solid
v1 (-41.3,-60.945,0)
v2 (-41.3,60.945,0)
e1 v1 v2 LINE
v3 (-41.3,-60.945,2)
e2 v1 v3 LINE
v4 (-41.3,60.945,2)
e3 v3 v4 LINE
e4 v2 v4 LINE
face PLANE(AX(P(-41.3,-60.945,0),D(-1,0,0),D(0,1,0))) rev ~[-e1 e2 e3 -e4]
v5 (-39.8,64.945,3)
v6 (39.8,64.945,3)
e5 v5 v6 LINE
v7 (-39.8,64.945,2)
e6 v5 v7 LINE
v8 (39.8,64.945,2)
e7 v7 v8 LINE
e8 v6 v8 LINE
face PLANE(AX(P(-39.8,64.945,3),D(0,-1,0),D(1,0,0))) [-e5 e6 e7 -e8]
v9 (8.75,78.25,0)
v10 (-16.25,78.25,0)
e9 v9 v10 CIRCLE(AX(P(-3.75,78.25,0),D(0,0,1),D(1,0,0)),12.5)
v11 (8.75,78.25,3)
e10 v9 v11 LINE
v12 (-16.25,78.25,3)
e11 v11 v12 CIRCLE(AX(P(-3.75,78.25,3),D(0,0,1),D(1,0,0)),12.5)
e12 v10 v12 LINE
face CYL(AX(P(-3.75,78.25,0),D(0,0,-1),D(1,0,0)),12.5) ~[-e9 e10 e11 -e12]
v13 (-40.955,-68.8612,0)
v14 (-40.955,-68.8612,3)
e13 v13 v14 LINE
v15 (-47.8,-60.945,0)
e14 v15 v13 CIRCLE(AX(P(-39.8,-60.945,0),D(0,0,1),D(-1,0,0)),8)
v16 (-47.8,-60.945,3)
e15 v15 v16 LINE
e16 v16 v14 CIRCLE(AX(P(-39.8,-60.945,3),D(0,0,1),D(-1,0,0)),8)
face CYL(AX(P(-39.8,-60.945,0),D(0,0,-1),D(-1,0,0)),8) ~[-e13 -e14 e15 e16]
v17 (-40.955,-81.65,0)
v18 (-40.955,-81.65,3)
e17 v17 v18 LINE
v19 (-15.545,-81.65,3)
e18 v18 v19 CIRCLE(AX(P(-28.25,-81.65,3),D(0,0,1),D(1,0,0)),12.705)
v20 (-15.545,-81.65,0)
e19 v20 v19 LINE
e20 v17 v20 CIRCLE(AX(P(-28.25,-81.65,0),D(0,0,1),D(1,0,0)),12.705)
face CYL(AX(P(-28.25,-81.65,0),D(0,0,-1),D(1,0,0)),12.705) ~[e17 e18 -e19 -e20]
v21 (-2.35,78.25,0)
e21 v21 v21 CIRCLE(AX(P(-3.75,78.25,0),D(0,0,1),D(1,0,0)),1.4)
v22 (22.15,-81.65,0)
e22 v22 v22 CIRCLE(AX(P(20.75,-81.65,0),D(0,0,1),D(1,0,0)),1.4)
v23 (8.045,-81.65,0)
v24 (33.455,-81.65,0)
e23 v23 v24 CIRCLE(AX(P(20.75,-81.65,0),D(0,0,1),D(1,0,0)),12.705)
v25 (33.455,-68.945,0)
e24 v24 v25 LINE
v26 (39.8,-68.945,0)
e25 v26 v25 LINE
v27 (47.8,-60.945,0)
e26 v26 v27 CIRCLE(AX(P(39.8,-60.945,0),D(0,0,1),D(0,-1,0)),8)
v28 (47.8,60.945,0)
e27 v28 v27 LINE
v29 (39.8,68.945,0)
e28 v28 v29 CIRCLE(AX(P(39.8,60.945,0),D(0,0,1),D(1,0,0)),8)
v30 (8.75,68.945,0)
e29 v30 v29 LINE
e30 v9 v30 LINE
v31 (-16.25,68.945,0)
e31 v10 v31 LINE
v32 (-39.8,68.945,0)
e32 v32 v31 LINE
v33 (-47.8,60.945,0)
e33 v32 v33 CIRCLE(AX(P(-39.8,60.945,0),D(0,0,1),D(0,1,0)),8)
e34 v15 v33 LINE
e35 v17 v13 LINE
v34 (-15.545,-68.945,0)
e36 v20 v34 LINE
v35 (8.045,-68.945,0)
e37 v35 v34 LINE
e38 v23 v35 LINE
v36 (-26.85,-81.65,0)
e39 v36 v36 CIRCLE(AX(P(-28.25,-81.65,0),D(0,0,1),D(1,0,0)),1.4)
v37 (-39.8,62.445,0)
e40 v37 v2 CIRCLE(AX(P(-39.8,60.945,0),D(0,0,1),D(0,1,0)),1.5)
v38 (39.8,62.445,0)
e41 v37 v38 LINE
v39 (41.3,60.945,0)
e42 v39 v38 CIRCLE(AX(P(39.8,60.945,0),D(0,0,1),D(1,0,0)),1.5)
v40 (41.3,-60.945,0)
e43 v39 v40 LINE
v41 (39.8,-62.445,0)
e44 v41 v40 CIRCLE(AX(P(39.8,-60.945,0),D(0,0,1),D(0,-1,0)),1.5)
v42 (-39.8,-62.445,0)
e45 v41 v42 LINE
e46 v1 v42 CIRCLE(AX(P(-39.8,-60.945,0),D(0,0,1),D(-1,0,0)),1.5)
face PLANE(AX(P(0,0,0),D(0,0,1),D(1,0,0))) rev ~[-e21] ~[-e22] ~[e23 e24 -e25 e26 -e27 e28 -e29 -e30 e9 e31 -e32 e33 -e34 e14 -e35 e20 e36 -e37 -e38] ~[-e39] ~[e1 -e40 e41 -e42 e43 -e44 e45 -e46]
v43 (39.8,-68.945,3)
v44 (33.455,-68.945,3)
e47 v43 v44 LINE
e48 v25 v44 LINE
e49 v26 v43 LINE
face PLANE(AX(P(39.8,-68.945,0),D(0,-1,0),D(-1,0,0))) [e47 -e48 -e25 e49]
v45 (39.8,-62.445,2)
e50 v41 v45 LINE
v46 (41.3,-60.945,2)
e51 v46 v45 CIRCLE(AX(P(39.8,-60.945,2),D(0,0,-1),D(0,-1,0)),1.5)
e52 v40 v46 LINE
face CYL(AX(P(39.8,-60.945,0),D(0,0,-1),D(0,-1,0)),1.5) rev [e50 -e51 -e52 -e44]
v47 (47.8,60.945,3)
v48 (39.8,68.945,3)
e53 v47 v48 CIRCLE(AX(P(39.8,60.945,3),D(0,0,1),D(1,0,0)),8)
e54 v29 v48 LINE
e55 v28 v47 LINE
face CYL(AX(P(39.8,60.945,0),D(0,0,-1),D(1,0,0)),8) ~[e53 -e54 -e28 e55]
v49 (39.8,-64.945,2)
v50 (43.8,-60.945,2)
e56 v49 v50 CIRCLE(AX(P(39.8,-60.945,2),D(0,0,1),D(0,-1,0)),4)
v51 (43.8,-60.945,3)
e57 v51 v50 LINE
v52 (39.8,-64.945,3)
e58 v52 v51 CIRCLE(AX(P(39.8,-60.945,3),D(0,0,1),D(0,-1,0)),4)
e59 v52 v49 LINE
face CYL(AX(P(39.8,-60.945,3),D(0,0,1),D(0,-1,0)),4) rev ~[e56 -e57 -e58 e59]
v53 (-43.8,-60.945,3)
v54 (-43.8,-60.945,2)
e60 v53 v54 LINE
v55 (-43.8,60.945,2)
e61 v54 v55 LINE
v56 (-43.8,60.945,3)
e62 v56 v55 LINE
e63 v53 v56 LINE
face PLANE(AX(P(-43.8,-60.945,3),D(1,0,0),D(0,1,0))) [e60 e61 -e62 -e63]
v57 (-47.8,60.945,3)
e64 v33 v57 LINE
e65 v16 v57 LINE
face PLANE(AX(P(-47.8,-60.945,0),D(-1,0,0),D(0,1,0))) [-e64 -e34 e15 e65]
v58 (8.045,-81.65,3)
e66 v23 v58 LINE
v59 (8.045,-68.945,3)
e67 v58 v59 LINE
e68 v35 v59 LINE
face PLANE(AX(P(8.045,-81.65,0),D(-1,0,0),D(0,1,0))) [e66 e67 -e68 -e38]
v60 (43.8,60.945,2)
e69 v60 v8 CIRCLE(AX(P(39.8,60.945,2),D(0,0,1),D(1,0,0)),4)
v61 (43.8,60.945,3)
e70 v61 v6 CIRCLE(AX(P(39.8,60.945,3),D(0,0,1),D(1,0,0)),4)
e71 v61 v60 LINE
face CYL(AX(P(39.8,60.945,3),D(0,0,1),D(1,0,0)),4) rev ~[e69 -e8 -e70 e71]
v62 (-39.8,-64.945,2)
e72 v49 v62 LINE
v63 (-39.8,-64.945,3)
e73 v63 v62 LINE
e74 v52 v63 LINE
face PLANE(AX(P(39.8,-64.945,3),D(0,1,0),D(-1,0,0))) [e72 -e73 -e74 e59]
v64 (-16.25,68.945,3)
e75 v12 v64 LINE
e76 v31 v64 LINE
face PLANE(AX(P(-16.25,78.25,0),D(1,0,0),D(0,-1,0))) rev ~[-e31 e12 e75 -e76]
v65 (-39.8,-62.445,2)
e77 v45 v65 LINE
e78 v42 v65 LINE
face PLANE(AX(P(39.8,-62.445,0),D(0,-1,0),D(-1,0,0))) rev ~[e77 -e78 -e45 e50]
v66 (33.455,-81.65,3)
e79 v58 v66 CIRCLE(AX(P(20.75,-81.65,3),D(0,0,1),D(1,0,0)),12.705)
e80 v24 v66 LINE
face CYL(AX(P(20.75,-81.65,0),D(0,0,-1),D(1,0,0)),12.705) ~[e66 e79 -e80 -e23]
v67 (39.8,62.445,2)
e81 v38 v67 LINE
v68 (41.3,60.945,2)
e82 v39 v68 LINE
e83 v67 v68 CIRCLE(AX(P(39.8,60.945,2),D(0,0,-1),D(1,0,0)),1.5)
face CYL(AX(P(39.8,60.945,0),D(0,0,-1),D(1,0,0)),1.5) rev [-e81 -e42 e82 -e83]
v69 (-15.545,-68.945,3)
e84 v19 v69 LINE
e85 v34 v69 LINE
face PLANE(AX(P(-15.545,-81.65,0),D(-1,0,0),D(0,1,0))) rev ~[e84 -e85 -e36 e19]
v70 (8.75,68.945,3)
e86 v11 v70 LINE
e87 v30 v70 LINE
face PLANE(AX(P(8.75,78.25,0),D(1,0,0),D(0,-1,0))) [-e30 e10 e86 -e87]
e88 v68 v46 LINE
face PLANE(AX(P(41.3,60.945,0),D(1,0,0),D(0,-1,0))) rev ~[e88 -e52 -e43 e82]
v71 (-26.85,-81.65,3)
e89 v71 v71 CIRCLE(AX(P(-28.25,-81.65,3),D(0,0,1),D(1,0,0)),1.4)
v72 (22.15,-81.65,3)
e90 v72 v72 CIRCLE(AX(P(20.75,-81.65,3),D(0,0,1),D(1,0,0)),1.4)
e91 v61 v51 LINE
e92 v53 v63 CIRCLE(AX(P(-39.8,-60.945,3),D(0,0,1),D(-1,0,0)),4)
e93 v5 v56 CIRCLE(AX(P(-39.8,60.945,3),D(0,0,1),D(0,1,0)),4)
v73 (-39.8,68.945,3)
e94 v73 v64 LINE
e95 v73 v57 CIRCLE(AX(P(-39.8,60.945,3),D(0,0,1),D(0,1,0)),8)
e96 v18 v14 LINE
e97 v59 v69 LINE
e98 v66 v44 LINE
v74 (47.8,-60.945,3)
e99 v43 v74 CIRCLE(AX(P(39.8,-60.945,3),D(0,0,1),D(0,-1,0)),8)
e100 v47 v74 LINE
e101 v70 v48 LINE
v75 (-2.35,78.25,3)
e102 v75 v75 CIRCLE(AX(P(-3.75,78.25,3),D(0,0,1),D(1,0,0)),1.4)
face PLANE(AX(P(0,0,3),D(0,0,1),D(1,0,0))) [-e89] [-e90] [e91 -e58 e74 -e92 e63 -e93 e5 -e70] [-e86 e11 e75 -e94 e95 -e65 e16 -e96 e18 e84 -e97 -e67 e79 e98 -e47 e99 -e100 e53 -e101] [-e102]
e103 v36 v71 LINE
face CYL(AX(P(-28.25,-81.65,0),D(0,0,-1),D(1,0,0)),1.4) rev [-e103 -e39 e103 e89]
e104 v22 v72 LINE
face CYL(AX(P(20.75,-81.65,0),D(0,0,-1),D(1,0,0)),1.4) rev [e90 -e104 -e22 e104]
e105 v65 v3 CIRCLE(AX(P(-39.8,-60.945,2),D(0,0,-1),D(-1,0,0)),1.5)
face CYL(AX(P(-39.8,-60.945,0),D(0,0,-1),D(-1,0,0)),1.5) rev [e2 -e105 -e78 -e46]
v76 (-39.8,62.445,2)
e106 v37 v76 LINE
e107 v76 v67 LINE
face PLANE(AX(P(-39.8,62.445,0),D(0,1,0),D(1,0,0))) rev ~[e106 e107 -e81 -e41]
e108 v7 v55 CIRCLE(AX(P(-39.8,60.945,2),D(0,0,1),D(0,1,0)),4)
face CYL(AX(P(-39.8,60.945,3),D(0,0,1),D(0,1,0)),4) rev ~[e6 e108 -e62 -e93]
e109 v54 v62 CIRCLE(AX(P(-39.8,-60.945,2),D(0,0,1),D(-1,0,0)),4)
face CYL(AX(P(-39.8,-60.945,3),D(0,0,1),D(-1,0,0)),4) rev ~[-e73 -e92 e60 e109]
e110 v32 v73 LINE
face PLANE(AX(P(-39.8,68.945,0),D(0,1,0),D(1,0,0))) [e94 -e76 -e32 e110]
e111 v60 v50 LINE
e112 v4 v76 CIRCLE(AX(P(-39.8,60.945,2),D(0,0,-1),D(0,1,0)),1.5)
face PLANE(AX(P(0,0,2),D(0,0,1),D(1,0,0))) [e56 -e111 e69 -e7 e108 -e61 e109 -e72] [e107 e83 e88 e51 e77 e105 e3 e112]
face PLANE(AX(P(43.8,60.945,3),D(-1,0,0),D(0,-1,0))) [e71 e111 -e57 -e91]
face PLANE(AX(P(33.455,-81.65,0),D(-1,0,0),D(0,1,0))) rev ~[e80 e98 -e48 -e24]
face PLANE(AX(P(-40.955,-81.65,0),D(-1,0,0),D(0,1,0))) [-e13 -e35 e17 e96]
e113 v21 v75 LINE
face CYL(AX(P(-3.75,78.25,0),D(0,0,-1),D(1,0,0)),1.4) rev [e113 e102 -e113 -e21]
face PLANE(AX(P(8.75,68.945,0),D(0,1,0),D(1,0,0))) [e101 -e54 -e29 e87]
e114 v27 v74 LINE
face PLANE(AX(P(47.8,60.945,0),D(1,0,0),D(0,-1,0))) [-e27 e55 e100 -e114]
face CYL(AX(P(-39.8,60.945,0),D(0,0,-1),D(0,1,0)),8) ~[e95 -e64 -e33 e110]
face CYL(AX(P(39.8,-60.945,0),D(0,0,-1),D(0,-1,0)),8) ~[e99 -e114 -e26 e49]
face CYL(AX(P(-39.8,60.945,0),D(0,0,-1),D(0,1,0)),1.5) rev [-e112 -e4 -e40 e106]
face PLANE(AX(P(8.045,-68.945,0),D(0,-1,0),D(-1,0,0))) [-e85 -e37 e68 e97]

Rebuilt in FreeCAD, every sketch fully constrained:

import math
import FreeCAD as App
import Part
import Sketcher
from FreeCAD import Vector
Q = App.Units.Quantity

doc = App.newDocument("Part")
body = doc.addObject("PartDesign::Body", "Body")

sketch1 = doc.addObject("Sketcher::SketchObject", "Sketch")
body.addObject(sketch1)
sketch1.AttachmentSupport = (doc.XY_Plane, [""])
sketch1.MapMode = "FlatFace"
sketch1.addGeometry([
    Part.LineSegment(Vector(47.8, -60.9, 0), Vector(47.8, 60.9, 0)),
    Part.ArcOfCircle(Part.Circle(Vector(39.8, 60.9, 0), Vector(0, 0, 1), 8), math.radians(0), math.radians(90)),
    Part.LineSegment(Vector(39.8, 68.9, 0), Vector(8.8, 68.9, 0)),
    Part.LineSegment(Vector(8.8, 68.9, 0), Vector(8.8, 78.2, 0)),
    Part.ArcOfCircle(Part.Circle(Vector(-3.8, 78.2, 0), Vector(0, 0, 1), 12.5), math.radians(0), math.radians(180)),
    Part.LineSegment(Vector(-16.2, 78.2, 0), Vector(-16.2, 68.9, 0)),
    Part.LineSegment(Vector(-16.2, 68.9, 0), Vector(-39.8, 68.9, 0)),
    Part.ArcOfCircle(Part.Circle(Vector(-39.8, 60.9, 0), Vector(0, 0, 1), 8), math.radians(90), math.radians(180)),
    Part.LineSegment(Vector(-47.8, 60.9, 0), Vector(-47.8, -60.9, 0)),
    Part.ArcOfCircle(Part.Circle(Vector(-39.8, -60.9, 0), Vector(0, 0, 1), 8), math.radians(180), math.radians(262)),
    Part.LineSegment(Vector(-41, -68.9, 0), Vector(-41, -81.7, 0)),
    Part.ArcOfCircle(Part.Circle(Vector(-28.2, -81.7, 0), Vector(0, 0, 1), 12.7), math.radians(180), math.radians(360)),
    Part.LineSegment(Vector(-15.5, -81.7, 0), Vector(-15.5, -68.9, 0)),
    Part.LineSegment(Vector(-15.5, -68.9, 0), Vector(8, -68.9, 0)),
    Part.LineSegment(Vector(8, -68.9, 0), Vector(8, -81.7, 0)),
    Part.ArcOfCircle(Part.Circle(Vector(20.8, -81.7, 0), Vector(0, 0, 1), 12.7), math.radians(180), math.radians(360)),
    Part.LineSegment(Vector(33.5, -81.7, 0), Vector(33.5, -68.9, 0)),
    Part.LineSegment(Vector(33.5, -68.9, 0), Vector(39.8, -68.9, 0)),
    Part.ArcOfCircle(Part.Circle(Vector(39.8, -60.9, 0), Vector(0, 0, 1), 8), math.radians(-90), math.radians(0)),
    Part.ArcOfCircle(Part.Circle(Vector(39.8, 60.9, 0), Vector(0, 0, 1), 1.5), math.radians(0), math.radians(90)),
    Part.LineSegment(Vector(41.3, 60.9, 0), Vector(41.3, -60.9, 0)),
    Part.ArcOfCircle(Part.Circle(Vector(39.8, -60.9, 0), Vector(0, 0, 1), 1.5), math.radians(-90), math.radians(0)),
    Part.LineSegment(Vector(39.8, -62.4, 0), Vector(-39.8, -62.4, 0)),
    Part.ArcOfCircle(Part.Circle(Vector(-39.8, -60.9, 0), Vector(0, 0, 1), 1.5), math.radians(180), math.radians(270)),
    Part.LineSegment(Vector(-41.3, -60.9, 0), Vector(-41.3, 60.9, 0)),
    Part.ArcOfCircle(Part.Circle(Vector(-39.8, 60.9, 0), Vector(0, 0, 1), 1.5), math.radians(90), math.radians(180)),
    Part.LineSegment(Vector(-39.8, 62.4, 0), Vector(39.8, 62.4, 0)),
    Part.Circle(Vector(20.8, -81.7, 0), Vector(0, 0, 1), 1.4),
    Part.Circle(Vector(-28.2, -81.7, 0), Vector(0, 0, 1), 1.4),
    Part.Circle(Vector(-3.8, 78.2, 0), Vector(0, 0, 1), 1.4),
], False)
sketch1.addConstraint([
    Sketcher.Constraint("Tangent", 0, 2, 1, 1),
    Sketcher.Constraint("Tangent", 1, 2, 2, 1),
    Sketcher.Constraint("Coincident", 2, 2, 3, 1),
    Sketcher.Constraint("Tangent", 3, 2, 4, 1),
    Sketcher.Constraint("Tangent", 4, 2, 5, 1),
    Sketcher.Constraint("Coincident", 5, 2, 6, 1),
    Sketcher.Constraint("Tangent", 6, 2, 7, 1),
    Sketcher.Constraint("Tangent", 7, 2, 8, 1),
    Sketcher.Constraint("Tangent", 8, 2, 9, 1),
    Sketcher.Constraint("Coincident", 9, 2, 10, 1),
    Sketcher.Constraint("Tangent", 10, 2, 11, 1),
    Sketcher.Constraint("Tangent", 11, 2, 12, 1),
    Sketcher.Constraint("Coincident", 12, 2, 13, 1),
    Sketcher.Constraint("Coincident", 13, 2, 14, 1),
    Sketcher.Constraint("Tangent", 14, 2, 15, 1),
    Sketcher.Constraint("Tangent", 15, 2, 16, 1),
    Sketcher.Constraint("Coincident", 16, 2, 17, 1),
    Sketcher.Constraint("Tangent", 17, 2, 18, 1),
    Sketcher.Constraint("Tangent", 18, 2, 0, 1),
    Sketcher.Constraint("Tangent", 19, 1, 20, 1),
    Sketcher.Constraint("Tangent", 20, 2, 21, 2),
    Sketcher.Constraint("Tangent", 21, 1, 22, 1),
    Sketcher.Constraint("Tangent", 22, 2, 23, 2),
    Sketcher.Constraint("Tangent", 23, 1, 24, 1),
    Sketcher.Constraint("Tangent", 24, 2, 25, 2),
    Sketcher.Constraint("Tangent", 25, 1, 26, 1),
    Sketcher.Constraint("Tangent", 26, 2, 19, 2),
    Sketcher.Constraint("Vertical", 0),
    Sketcher.Constraint("Horizontal", 2),
    Sketcher.Constraint("Vertical", 3),
    Sketcher.Constraint("Vertical", 5),
    Sketcher.Constraint("Horizontal", 6),
    Sketcher.Constraint("Vertical", 8),
    Sketcher.Constraint("Vertical", 10),
    Sketcher.Constraint("Vertical", 12),
    Sketcher.Constraint("Horizontal", 13),
    Sketcher.Constraint("Vertical", 14),
    Sketcher.Constraint("Vertical", 16),
    Sketcher.Constraint("Horizontal", 17),
    Sketcher.Constraint("Vertical", 20),
    Sketcher.Constraint("Horizontal", 22),
    Sketcher.Constraint("Vertical", 24),
    Sketcher.Constraint("Horizontal", 26),
    Sketcher.Constraint("Coincident", 19, 3, 1, 3),
    Sketcher.Constraint("Coincident", 21, 3, 18, 3),
    Sketcher.Constraint("Coincident", 23, 3, 9, 3),
    Sketcher.Constraint("Coincident", 25, 3, 7, 3),
    Sketcher.Constraint("Coincident", 27, 3, 15, 3),
    Sketcher.Constraint("Coincident", 28, 3, 11, 3),
    Sketcher.Constraint("Coincident", 29, 3, 4, 3),
    Sketcher.Constraint("Equal", 1, 7),
    Sketcher.Constraint("Equal", 7, 9),
    Sketcher.Constraint("Equal", 11, 15),
    Sketcher.Constraint("Equal", 9, 18),
    Sketcher.Constraint("Equal", 21, 23),
    Sketcher.Constraint("Equal", 27, 28),
    Sketcher.Constraint("Equal", 28, 29),
    Sketcher.Constraint("Symmetric", 1, 3, 9, 3, -1, 1),
    Sketcher.Constraint("Horizontal", 11, 3, 15, 3),
    Sketcher.Constraint("Horizontal", 13, 2, 16, 2),
    Sketcher.Constraint("Diameter", 27, Q("2.8 mm")),
    Sketcher.Constraint("Radius", 4, Q("12.5 mm")),
    Sketcher.Constraint("Radius", 19, Q("1.5 mm")),
    Sketcher.Constraint("Radius", 1, Q("8 mm")),
    Sketcher.Constraint("DistanceX", 22, 2, 22, 1, Q("79.6 mm")),
    Sketcher.Constraint("Radius", 11, Q("12.705 mm")),
    Sketcher.Constraint("DistanceX", 11, 3, 15, 3, Q("49 mm")),
    Sketcher.Constraint("DistanceX", 2, 2, 2, 1, Q("31.05 mm")),
    Sketcher.Constraint("DistanceY", 0, 1, 0, 2, Q("121.89 mm")),
    Sketcher.Constraint("DistanceX", 11, 3, 4, 3, Q("24.5 mm")),
    Sketcher.Constraint("DistanceY", 11, 3, 4, 3, Q("159.9 mm")),
    Sketcher.Constraint("DistanceY", 3, 1, 3, 2, Q("9.305 mm")),
])
pad1 = doc.addObject("PartDesign::Pad", "Pad")
body.addObject(pad1)
pad1.Profile = sketch1
pad1.Length = 3

sketch2 = doc.addObject("Sketcher::SketchObject", "Sketch001")
body.addObject(sketch2)
sketch2.AttachmentSupport = (doc.XY_Plane, [""])
sketch2.MapMode = "FlatFace"
sketch2.AttachmentOffset = App.Placement(Vector(0, 0, 3), App.Rotation())
sketch2.addGeometry([
    Part.LineSegment(Vector(43.8, -60.9, 0), Vector(43.8, 60.9, 0)),
    Part.ArcOfCircle(Part.Circle(Vector(39.8, 60.9, 0), Vector(0, 0, 1), 4), math.radians(0), math.radians(90)),
    Part.LineSegment(Vector(39.8, 64.9, 0), Vector(-39.8, 64.9, 0)),
    Part.ArcOfCircle(Part.Circle(Vector(-39.8, 60.9, 0), Vector(0, 0, 1), 4), math.radians(90), math.radians(180)),
    Part.LineSegment(Vector(-43.8, 60.9, 0), Vector(-43.8, -60.9, 0)),
    Part.ArcOfCircle(Part.Circle(Vector(-39.8, -60.9, 0), Vector(0, 0, 1), 4), math.radians(180), math.radians(270)),
    Part.LineSegment(Vector(-39.8, -64.9, 0), Vector(39.8, -64.9, 0)),
    Part.ArcOfCircle(Part.Circle(Vector(39.8, -60.9, 0), Vector(0, 0, 1), 4), math.radians(-90), math.radians(0)),
], False)
sketch2.addConstraint([
    Sketcher.Constraint("Tangent", 0, 2, 1, 1),
    Sketcher.Constraint("Tangent", 1, 2, 2, 1),
    Sketcher.Constraint("Tangent", 2, 2, 3, 1),
    Sketcher.Constraint("Tangent", 3, 2, 4, 1),
    Sketcher.Constraint("Tangent", 4, 2, 5, 1),
    Sketcher.Constraint("Tangent", 5, 2, 6, 1),
    Sketcher.Constraint("Tangent", 6, 2, 7, 1),
    Sketcher.Constraint("Tangent", 7, 2, 0, 1),
    Sketcher.Constraint("Vertical", 0),
    Sketcher.Constraint("Horizontal", 2),
    Sketcher.Constraint("Vertical", 4),
    Sketcher.Constraint("Horizontal", 6),
    Sketcher.Constraint("Equal", 1, 3),
    Sketcher.Constraint("Equal", 3, 5),
    Sketcher.Constraint("Equal", 5, 7),
    Sketcher.Constraint("Symmetric", 1, 3, 5, 3, -1, 1),
    Sketcher.Constraint("Radius", 1, Q("4 mm")),
    Sketcher.Constraint("DistanceX", 2, 2, 2, 1, Q("79.6 mm")),
    Sketcher.Constraint("DistanceY", 0, 1, 0, 2, Q("121.89 mm")),
])
pocket1 = doc.addObject("PartDesign::Pocket", "Pocket")
body.addObject(pocket1)
pocket1.Profile = sketch2
pocket1.Length = 1

doc.recompute()
